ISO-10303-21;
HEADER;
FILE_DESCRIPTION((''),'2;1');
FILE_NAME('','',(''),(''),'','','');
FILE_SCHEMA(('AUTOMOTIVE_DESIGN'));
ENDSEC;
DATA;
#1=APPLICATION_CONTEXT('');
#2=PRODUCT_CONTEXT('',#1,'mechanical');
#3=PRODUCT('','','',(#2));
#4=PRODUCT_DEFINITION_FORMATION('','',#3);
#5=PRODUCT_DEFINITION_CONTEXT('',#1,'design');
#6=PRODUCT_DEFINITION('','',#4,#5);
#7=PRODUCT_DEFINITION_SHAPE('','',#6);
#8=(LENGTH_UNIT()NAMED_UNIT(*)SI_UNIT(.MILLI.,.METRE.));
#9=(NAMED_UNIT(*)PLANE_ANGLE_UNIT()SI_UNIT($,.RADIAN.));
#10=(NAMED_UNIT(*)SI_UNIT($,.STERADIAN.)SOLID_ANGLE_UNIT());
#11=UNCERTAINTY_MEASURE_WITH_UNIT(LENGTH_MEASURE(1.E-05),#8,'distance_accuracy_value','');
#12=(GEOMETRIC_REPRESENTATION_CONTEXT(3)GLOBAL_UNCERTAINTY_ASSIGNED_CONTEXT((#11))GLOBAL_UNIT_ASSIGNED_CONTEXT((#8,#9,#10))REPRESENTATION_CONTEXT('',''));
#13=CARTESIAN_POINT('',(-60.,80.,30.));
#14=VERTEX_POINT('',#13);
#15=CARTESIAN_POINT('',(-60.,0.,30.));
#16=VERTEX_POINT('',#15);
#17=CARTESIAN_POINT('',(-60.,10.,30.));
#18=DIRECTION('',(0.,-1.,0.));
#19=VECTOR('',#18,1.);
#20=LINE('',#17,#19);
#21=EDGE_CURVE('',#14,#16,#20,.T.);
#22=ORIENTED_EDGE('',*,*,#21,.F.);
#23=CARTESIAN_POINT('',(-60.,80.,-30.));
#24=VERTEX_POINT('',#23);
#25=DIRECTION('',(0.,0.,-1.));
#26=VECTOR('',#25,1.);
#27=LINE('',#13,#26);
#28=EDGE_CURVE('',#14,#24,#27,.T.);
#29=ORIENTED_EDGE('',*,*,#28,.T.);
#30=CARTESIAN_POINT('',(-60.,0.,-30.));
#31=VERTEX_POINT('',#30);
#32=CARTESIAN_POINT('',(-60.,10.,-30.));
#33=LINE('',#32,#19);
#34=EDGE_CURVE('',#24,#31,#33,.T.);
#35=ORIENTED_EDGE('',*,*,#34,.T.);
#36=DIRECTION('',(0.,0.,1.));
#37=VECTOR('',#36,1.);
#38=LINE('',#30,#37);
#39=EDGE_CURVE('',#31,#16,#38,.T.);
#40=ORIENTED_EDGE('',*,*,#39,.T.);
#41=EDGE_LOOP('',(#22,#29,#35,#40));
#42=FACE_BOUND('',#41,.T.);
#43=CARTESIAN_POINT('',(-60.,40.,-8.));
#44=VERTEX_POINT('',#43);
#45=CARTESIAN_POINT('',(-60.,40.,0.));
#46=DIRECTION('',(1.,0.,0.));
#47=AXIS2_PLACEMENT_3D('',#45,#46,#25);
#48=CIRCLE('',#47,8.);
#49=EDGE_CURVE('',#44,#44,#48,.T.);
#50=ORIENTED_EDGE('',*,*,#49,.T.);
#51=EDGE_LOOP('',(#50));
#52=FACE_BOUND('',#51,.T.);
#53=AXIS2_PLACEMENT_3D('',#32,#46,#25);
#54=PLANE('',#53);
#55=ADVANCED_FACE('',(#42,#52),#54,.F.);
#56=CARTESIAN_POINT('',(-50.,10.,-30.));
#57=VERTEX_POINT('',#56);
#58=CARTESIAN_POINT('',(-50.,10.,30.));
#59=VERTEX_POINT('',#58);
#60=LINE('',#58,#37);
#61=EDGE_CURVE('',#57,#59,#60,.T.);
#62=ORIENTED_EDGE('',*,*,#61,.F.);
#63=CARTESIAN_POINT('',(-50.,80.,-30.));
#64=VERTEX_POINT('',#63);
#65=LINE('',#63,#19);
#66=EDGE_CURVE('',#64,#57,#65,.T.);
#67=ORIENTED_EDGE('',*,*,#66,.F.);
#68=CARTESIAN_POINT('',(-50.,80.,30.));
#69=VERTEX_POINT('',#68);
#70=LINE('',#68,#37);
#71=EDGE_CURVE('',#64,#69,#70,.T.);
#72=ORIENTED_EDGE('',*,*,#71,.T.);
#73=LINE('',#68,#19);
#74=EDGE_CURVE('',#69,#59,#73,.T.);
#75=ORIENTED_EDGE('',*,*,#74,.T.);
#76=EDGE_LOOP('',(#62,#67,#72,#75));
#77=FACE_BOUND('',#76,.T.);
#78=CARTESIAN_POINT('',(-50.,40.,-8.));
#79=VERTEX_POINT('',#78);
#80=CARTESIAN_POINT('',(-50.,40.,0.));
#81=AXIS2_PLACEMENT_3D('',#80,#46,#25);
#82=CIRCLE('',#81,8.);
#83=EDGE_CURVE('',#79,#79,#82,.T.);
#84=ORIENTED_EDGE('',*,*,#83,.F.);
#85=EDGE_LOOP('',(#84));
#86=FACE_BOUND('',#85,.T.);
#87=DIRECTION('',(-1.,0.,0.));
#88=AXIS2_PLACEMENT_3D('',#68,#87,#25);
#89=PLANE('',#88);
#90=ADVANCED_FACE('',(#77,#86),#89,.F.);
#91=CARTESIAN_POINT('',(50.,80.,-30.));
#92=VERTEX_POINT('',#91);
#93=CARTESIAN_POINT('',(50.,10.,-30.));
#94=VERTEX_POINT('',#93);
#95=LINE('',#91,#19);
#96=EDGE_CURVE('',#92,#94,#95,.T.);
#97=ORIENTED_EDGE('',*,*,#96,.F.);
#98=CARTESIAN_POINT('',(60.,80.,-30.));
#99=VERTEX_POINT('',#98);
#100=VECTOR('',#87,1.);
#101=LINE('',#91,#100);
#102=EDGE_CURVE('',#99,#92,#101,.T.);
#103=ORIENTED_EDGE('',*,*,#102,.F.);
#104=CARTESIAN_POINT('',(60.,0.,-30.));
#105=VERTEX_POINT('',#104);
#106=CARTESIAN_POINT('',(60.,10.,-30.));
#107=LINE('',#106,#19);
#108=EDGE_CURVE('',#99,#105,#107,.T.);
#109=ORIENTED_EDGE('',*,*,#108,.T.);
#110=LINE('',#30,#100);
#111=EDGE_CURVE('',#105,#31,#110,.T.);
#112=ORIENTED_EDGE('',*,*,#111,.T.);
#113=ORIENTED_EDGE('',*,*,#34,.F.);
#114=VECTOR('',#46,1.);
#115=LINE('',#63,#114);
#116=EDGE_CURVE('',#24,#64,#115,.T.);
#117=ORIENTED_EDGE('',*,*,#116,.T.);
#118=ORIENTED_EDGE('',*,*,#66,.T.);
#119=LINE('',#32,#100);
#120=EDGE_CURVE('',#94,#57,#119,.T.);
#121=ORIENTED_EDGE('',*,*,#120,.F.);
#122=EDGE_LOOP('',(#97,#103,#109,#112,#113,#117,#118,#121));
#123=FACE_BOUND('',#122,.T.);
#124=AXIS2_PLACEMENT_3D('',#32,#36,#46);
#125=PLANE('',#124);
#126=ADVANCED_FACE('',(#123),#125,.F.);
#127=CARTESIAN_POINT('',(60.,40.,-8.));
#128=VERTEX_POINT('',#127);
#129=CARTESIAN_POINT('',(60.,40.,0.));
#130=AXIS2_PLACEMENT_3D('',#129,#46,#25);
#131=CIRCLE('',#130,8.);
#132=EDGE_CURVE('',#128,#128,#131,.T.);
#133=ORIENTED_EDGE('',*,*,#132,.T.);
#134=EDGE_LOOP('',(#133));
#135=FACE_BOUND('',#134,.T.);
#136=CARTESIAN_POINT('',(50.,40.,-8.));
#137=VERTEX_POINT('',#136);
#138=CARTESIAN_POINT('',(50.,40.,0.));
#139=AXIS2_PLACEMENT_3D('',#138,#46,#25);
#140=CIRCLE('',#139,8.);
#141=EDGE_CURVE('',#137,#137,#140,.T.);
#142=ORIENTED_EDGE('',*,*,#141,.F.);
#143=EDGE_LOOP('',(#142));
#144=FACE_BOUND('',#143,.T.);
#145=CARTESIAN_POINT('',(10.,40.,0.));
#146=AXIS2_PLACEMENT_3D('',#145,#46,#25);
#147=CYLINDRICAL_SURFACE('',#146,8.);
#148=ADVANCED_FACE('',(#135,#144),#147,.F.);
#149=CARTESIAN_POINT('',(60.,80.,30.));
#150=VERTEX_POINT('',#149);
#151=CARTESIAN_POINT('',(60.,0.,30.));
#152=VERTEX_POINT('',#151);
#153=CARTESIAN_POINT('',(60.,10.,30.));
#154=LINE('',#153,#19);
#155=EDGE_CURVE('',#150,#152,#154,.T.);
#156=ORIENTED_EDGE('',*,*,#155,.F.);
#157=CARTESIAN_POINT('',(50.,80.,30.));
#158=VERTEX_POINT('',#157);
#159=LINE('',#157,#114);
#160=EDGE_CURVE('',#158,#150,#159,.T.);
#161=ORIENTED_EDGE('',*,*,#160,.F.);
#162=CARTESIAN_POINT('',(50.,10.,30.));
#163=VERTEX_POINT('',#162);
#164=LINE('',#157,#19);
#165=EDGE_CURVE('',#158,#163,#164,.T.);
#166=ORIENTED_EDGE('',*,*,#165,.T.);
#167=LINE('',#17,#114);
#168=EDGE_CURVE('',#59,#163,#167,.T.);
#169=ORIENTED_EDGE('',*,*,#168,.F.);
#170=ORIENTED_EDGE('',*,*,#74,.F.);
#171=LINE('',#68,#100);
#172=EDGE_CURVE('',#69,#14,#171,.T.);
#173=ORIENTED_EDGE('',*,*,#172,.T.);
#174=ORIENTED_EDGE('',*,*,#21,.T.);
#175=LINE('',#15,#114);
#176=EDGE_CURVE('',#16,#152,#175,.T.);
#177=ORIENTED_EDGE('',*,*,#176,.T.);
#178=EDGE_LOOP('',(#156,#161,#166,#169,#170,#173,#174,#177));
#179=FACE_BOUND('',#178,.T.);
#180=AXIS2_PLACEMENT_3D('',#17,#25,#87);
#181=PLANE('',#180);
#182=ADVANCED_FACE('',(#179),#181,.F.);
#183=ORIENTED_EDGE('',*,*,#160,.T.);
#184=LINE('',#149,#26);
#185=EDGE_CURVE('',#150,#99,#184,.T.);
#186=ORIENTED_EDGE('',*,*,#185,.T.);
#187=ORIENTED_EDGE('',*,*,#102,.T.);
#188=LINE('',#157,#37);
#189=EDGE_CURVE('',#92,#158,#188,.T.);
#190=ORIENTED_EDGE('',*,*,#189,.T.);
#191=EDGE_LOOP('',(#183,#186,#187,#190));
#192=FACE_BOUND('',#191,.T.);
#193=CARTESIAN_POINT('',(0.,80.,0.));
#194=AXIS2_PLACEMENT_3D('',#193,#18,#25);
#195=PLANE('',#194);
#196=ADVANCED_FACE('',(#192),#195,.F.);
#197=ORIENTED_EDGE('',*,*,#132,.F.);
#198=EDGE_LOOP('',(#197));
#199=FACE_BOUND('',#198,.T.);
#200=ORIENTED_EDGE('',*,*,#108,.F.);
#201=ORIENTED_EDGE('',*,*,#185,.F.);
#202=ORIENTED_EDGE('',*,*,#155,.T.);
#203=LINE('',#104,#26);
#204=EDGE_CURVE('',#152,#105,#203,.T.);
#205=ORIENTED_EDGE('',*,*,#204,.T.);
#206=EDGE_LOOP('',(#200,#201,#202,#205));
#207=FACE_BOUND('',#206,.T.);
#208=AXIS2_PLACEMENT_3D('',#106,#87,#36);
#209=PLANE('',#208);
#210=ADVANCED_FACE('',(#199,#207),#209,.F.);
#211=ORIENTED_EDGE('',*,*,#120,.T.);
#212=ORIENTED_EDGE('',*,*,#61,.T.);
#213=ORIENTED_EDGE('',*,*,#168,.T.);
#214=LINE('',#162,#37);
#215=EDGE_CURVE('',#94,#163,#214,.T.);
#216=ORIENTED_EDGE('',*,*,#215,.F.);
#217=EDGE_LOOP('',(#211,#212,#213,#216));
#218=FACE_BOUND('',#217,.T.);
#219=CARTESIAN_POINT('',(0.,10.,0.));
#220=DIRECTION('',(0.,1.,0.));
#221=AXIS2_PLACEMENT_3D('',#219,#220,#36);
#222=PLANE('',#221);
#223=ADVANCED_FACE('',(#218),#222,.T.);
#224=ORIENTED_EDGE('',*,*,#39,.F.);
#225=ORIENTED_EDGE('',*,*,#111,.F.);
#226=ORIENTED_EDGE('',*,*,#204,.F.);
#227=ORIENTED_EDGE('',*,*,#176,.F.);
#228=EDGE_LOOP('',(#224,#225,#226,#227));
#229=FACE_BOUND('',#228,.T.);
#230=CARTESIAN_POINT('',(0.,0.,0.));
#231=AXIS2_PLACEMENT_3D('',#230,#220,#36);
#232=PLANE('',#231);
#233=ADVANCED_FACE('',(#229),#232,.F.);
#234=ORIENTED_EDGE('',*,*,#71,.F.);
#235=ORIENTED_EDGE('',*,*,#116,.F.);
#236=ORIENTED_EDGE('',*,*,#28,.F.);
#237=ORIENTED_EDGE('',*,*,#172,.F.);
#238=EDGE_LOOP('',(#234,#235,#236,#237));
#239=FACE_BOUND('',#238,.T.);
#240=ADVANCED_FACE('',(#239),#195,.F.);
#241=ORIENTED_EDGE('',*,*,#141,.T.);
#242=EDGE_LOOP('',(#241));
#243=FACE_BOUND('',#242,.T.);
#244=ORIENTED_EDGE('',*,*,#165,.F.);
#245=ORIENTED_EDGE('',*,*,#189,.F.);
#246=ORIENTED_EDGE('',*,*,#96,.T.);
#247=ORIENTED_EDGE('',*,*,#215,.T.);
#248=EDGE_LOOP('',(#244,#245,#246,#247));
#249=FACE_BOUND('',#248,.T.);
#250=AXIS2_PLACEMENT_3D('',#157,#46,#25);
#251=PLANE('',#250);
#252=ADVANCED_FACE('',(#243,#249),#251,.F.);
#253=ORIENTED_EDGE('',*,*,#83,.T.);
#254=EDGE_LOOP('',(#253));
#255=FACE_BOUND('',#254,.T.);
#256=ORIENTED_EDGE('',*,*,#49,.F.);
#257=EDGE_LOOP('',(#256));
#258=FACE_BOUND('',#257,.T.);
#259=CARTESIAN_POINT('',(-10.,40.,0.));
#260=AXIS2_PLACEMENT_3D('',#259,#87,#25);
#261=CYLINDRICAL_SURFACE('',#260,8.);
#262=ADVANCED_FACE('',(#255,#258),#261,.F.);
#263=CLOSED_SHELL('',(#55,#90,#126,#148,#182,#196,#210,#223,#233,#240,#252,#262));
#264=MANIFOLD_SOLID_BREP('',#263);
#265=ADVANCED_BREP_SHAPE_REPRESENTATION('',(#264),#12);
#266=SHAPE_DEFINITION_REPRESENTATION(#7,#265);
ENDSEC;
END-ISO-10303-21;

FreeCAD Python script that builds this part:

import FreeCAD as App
import Part
import Sketcher
Q = App.Units.Quantity


def add_polygon(sketch, points):
    """Adds a closed chain of lines whose ends are joined by coincident constraints."""
    first, n = sketch.GeometryCount, len(points)
    for a, b in zip(points, points[1:] + points[:1]):
        sketch.addGeometry(Part.LineSegment(App.Vector(*a, 0), App.Vector(*b, 0)), False)
    for i in range(n):
        sketch.addConstraint(Sketcher.Constraint("Coincident", first + i, 2, first + (i + 1) % n, 1))

doc = App.newDocument("Part")
body = doc.addObject("PartDesign::Body", "Body")

# Sketch on XZ plane
sketch1 = body.newObject("Sketcher::SketchObject", "Sketch")
sketch1.AttachmentSupport = (doc.getObject("XZ_Plane"), [""])
sketch1.MapMode = "FlatFace"
add_polygon(sketch1, [(-60, -30), (-60, 30), (60, 30), (60, -30)])  # lines 0-3
sketch1.addConstraint([
    Sketcher.Constraint("Vertical", 0),
    Sketcher.Constraint("Horizontal", 1),
    Sketcher.Constraint("Vertical", 2),
    Sketcher.Constraint("Horizontal", 3),
    Sketcher.Constraint("Symmetric", 0, 2, 2, 2, -1, 1),
    Sketcher.Constraint("DistanceX", 1, 1, 1, 2, Q("120 mm")),
    Sketcher.Constraint("DistanceY", 0, 1, 0, 2, Q("60 mm")),
])
pad1 = body.newObject("PartDesign::Pad", "Pad")
pad1.Profile = sketch1
pad1.Length = 10
pad1.Reversed = True

# Sketch on XZ plane
sketch2 = body.newObject("Sketcher::SketchObject", "Sketch001")
sketch2.AttachmentSupport = (doc.getObject("XZ_Plane"), [""])
sketch2.MapMode = "FlatFace"
sketch2.AttachmentOffset = App.Placement(App.Vector(0, 0, -10), App.Rotation())
add_polygon(sketch2, [(50, -30), (50, 30), (60, 30), (60, -30)])  # lines 0-3
sketch2.addConstraint([
    Sketcher.Constraint("Vertical", 0),
    Sketcher.Constraint("Horizontal", 1),
    Sketcher.Constraint("Vertical", 2),
    Sketcher.Constraint("Horizontal", 3),
    Sketcher.Constraint("DistanceX", 1, 1, 1, 2, Q("10 mm")),
    Sketcher.Constraint("DistanceY", 0, 1, 0, 2, Q("60 mm")),
    Sketcher.Constraint("DistanceX", -1, 1, 0, 2, Q("50 mm")),
    Sketcher.Constraint("DistanceY", -1, 1, 0, 2, Q("30 mm")),
])
pad2 = body.newObject("PartDesign::Pad", "Pad001")
pad2.Profile = sketch2
pad2.Length = 70
pad2.Reversed = True

# Sketch on YZ plane
sketch3 = body.newObject("Sketcher::SketchObject", "Sketch002")
sketch3.AttachmentSupport = (doc.getObject("YZ_Plane"), [""])
sketch3.MapMode = "FlatFace"
sketch3.AttachmentOffset = App.Placement(App.Vector(0, 0, 60), App.Rotation())
sketch3.addGeometry(Part.Circle(App.Vector(40, 0, 0), App.Vector(0, 0, 1), 8), False)
sketch3.addConstraint([
    Sketcher.Constraint("PointOnObject", 0, 3, -1),
    Sketcher.Constraint("Diameter", 0, Q("16 mm")),
    Sketcher.Constraint("DistanceX", -1, 1, 0, 3, Q("40 mm")),
])
pocket1 = body.newObject("PartDesign::Pocket", "Pocket")
pocket1.Profile = sketch3
pocket1.Length = 50
body2 = doc.addObject("PartDesign::Body", "Body001")
doc.recompute()

body2.BaseFeature = body
doc.recompute()

mirroring = doc.addObject("Part::Mirroring", "Mirroring")
mirroring.Source = body
mirroring.Base = App.Vector(0, 0, 0)
mirroring.Normal = App.Vector(1, 0, 0)
body3 = doc.addObject("PartDesign::Body", "Body002")
body3.BaseFeature = mirroring
boolean = body2.newObject("PartDesign::Boolean", "Boolean")
boolean.Type = "Fuse"
boolean.addObjects([body3])
doc.recompute()
mirroring.Visibility = False

doc.recompute()
